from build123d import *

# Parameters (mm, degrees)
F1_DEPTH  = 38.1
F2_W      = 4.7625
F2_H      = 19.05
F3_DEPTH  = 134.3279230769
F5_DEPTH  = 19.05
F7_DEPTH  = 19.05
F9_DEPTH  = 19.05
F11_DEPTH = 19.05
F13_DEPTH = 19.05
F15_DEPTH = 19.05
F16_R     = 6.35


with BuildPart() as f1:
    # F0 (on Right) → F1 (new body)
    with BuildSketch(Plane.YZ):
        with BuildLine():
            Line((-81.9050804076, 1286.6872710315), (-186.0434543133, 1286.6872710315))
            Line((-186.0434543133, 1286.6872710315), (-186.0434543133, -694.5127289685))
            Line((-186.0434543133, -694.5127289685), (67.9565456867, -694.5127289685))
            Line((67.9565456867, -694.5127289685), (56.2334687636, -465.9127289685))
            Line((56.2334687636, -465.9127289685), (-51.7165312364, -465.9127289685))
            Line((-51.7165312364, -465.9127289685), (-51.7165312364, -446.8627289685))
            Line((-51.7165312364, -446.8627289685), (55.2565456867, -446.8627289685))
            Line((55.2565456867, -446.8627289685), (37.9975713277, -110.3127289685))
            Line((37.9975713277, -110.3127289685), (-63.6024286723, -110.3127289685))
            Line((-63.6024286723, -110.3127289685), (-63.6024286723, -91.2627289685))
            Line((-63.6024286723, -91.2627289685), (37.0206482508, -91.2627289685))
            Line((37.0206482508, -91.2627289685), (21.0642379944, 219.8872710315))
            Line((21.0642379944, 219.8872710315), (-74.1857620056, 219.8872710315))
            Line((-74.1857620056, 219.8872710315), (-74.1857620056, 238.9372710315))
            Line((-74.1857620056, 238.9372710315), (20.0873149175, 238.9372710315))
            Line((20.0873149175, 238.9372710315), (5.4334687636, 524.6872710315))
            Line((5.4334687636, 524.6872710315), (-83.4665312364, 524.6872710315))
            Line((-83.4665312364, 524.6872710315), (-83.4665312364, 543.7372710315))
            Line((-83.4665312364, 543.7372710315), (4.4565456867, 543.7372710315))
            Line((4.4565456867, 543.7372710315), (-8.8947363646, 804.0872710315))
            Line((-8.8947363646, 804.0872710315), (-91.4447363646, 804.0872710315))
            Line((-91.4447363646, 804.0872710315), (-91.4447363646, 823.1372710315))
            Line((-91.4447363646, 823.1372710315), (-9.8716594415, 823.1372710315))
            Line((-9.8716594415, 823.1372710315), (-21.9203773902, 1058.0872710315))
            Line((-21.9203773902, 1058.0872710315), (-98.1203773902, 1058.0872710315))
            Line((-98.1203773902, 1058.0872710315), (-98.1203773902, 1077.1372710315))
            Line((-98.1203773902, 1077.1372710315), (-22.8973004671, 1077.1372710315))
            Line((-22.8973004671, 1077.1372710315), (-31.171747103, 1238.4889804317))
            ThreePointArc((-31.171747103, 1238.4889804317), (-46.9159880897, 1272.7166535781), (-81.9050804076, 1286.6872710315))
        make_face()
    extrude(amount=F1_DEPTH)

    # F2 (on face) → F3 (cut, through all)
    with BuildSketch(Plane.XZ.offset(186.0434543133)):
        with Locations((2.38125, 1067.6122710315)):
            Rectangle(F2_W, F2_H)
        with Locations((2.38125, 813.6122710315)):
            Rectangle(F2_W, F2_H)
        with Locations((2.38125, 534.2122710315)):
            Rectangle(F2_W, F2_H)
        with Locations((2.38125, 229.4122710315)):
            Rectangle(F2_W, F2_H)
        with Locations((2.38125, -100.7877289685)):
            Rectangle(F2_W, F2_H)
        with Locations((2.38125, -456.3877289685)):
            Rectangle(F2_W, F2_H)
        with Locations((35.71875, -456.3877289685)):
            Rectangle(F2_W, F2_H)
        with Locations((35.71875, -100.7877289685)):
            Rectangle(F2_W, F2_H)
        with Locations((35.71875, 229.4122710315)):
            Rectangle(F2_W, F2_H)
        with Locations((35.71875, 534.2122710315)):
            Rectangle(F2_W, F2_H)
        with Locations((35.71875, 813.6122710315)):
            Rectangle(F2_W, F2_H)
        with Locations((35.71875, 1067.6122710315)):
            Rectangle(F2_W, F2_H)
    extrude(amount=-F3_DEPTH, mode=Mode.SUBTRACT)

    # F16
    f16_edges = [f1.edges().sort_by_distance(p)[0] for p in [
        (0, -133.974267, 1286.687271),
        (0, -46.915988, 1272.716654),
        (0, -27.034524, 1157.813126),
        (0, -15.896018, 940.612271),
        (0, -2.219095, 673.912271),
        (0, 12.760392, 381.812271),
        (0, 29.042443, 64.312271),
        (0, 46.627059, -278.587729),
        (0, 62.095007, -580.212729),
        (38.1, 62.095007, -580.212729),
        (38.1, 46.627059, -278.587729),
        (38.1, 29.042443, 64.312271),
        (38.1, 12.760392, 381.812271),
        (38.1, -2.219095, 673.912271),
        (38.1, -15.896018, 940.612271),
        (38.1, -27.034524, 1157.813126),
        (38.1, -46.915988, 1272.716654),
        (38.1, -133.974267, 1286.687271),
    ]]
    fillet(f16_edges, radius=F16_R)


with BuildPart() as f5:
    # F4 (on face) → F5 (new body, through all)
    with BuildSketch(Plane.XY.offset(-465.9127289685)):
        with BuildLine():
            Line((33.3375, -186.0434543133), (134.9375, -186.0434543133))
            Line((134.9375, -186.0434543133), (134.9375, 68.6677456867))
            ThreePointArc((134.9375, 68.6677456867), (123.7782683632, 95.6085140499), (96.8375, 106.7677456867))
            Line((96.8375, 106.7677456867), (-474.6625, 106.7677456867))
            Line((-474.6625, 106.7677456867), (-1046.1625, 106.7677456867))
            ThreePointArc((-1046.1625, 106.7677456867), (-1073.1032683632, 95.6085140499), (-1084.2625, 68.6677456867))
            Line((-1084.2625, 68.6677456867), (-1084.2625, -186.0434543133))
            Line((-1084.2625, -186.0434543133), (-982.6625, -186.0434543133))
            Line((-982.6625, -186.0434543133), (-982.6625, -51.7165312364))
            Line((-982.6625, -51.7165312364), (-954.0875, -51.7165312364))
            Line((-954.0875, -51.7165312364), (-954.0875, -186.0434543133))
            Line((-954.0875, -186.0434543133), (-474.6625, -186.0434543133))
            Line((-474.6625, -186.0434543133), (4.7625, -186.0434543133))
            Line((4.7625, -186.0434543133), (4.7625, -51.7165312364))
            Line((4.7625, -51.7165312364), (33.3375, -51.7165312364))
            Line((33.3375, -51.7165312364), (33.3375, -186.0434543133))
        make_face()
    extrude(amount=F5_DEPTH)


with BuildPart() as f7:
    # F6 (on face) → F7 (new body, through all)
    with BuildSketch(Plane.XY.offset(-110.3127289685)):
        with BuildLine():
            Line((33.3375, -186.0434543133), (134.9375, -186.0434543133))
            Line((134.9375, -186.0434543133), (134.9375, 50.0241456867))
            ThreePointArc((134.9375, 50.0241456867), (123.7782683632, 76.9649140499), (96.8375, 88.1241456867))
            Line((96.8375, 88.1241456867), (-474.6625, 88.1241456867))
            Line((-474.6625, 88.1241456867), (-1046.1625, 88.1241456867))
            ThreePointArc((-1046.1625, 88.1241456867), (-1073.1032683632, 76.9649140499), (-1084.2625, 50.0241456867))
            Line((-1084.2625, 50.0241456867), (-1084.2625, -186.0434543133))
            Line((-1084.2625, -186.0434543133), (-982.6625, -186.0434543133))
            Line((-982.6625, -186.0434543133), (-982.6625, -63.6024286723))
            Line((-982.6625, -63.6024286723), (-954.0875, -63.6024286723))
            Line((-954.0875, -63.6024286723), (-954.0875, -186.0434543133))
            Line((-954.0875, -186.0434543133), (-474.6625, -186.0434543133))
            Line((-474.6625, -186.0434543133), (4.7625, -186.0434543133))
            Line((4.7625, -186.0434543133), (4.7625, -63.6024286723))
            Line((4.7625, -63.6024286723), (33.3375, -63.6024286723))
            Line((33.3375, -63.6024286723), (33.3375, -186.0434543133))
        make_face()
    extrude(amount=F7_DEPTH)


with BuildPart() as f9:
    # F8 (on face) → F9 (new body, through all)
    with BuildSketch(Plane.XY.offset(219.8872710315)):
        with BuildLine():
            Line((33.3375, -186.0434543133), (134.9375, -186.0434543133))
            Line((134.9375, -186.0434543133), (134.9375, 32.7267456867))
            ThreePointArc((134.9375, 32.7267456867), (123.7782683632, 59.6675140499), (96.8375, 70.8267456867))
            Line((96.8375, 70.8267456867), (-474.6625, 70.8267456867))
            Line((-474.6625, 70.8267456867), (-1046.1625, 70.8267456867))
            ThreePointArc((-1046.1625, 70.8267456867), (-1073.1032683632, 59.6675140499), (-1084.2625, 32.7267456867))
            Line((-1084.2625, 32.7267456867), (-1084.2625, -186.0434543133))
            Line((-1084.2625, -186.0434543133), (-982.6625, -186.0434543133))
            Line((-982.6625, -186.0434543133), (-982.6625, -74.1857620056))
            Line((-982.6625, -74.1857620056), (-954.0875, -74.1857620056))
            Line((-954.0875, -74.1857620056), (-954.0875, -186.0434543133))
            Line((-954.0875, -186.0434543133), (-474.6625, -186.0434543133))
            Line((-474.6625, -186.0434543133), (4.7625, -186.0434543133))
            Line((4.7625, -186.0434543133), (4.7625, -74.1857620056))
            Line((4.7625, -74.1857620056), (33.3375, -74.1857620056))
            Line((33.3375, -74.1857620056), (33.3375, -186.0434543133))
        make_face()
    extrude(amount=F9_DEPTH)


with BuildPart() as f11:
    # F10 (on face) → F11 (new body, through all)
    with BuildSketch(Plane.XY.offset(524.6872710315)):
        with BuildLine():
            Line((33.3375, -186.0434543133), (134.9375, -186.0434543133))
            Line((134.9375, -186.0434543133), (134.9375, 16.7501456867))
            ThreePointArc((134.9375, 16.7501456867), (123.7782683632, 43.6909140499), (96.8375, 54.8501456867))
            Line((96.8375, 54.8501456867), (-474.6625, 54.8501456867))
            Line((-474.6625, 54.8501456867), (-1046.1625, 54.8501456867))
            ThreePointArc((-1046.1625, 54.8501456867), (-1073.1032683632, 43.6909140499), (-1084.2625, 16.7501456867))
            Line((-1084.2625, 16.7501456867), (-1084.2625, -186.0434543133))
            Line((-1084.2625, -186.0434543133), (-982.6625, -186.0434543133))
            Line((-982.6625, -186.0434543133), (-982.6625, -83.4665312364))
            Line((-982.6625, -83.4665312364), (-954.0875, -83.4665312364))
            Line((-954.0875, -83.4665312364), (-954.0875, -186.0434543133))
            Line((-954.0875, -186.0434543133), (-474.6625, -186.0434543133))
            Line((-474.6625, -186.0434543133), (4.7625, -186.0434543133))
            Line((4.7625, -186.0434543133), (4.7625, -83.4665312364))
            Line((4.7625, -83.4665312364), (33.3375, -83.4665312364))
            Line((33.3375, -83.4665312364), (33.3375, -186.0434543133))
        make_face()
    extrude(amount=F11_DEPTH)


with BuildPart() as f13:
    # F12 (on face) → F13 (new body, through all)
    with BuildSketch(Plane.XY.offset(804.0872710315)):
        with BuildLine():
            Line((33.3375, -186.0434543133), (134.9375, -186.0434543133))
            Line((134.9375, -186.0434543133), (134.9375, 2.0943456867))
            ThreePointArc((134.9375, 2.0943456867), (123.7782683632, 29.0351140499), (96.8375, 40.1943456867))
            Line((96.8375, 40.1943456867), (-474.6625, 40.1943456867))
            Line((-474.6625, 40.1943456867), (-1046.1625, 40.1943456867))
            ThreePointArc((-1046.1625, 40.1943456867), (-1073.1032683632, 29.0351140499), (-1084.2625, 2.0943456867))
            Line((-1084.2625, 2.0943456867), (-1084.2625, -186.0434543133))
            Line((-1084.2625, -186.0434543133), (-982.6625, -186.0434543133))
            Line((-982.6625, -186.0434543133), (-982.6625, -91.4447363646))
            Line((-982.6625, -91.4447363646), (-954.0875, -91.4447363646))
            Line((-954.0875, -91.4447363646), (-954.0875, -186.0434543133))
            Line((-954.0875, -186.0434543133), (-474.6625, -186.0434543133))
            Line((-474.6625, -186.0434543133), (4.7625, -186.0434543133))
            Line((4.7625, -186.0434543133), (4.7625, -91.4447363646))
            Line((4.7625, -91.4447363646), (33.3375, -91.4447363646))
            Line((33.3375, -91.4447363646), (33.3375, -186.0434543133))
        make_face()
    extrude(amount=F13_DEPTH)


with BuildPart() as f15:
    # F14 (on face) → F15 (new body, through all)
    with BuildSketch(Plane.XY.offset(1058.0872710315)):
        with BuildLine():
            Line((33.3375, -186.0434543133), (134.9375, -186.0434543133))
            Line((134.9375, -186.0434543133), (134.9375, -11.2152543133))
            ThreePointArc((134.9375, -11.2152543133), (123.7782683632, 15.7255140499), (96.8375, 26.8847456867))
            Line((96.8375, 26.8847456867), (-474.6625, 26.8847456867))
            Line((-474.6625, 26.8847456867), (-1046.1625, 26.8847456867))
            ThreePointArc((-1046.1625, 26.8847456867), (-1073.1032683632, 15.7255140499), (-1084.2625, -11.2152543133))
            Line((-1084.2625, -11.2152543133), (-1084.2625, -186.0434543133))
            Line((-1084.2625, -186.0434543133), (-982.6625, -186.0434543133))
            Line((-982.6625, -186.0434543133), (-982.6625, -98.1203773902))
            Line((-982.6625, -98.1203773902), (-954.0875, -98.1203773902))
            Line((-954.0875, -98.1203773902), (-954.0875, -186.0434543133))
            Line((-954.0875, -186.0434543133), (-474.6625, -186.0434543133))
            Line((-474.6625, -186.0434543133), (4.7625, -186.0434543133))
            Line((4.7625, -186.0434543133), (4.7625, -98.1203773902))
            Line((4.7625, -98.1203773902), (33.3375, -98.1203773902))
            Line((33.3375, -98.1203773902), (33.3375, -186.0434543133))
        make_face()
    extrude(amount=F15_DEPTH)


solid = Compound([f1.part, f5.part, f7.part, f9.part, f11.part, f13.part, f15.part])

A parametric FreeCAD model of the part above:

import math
import FreeCAD as App
import Part
import Sketcher

V = App.Vector
Q = App.Units.Quantity


def edges_at(feature, points):
    """Names of the edges that pass closest to the given points."""
    edges = feature.Shape.Edges
    near = lambda p: min(range(len(edges)), key=lambda i: edges[i].distToShape(Part.Vertex(*p))[0])
    return sorted({f"Edge{near(p) + 1}" for p in points})


def add_polygon(sketch, points):
    """Adds a closed chain of lines whose ends are joined by coincident constraints."""
    first, n = sketch.GeometryCount, len(points)
    for a, b in zip(points, points[1:] + points[:1]):
        sketch.addGeometry(Part.LineSegment(App.Vector(*a, 0), App.Vector(*b, 0)), False)
    for i in range(n):
        sketch.addConstraint(Sketcher.Constraint("Coincident", first + i, 2, first + (i + 1) % n, 1))

doc = App.newDocument("Part")
body = doc.addObject("PartDesign::Body", "Body")

# Sketch on YZ plane
sketch1 = body.newObject("Sketcher::SketchObject", "Sketch")
sketch1.AttachmentSupport = (doc.getObject("YZ_Plane"), [""])
sketch1.MapMode = "FlatFace"
sketch1.addGeometry([
    Part.LineSegment(V(-82, 1287, 0), V(-186, 1287, 0)),  # 0
    Part.LineSegment(V(-186, 1287, 0), V(-186, -695, 0)),  # 1
    Part.LineSegment(V(-186, -695, 0), V(68, -695, 0)),  # 2
    Part.LineSegment(V(68, -695, 0), V(56, -466, 0)),  # 3
    Part.LineSegment(V(56, -466, 0), V(-52, -466, 0)),  # 4
    Part.LineSegment(V(-52, -466, 0), V(-52, -447, 0)),  # 5
    Part.LineSegment(V(-52, -447, 0), V(55, -447, 0)),  # 6
    Part.LineSegment(V(55, -447, 0), V(38, -110, 0)),  # 7
    Part.LineSegment(V(38, -110, 0), V(-64, -110, 0)),  # 8
    Part.LineSegment(V(-64, -110, 0), V(-64, -91, 0)),  # 9
    Part.LineSegment(V(-64, -91, 0), V(37, -91, 0)),  # 10
    Part.LineSegment(V(37, -91, 0), V(21, 220, 0)),  # 11
    Part.LineSegment(V(21, 220, 0), V(-74, 220, 0)),  # 12
    Part.LineSegment(V(-74, 220, 0), V(-74, 239, 0)),  # 13
    Part.LineSegment(V(-74, 239, 0), V(20, 239, 0)),  # 14
    Part.LineSegment(V(20, 239, 0), V(5, 525, 0)),  # 15
    Part.LineSegment(V(5, 525, 0), V(-83, 525, 0)),  # 16
    Part.LineSegment(V(-83, 525, 0), V(-83, 544, 0)),  # 17
    Part.LineSegment(V(-83, 544, 0), V(4, 544, 0)),  # 18
    Part.LineSegment(V(4, 544, 0), V(-9, 804, 0)),  # 19
    Part.LineSegment(V(-9, 804, 0), V(-91, 804, 0)),  # 20
    Part.LineSegment(V(-91, 804, 0), V(-91, 823, 0)),  # 21
    Part.LineSegment(V(-91, 823, 0), V(-10, 823, 0)),  # 22
    Part.LineSegment(V(-10, 823, 0), V(-22, 1058, 0)),  # 23
    Part.LineSegment(V(-22, 1058, 0), V(-98, 1058, 0)),  # 24
    Part.LineSegment(V(-98, 1058, 0), V(-98, 1077, 0)),  # 25
    Part.LineSegment(V(-98, 1077, 0), V(-23, 1077, 0)),  # 26
    Part.LineSegment(V(-23, 1077, 0), V(-31, 1238, 0)),  # 27
    Part.ArcOfCircle(Part.Circle(V(-82, 1236, 0), V(0, 0, 1), 51), math.radians(3), math.radians(90)),  # 28
], False)
sketch1.addConstraint([
    Sketcher.Constraint("Coincident", 0, 2, 1, 1),
    Sketcher.Constraint("Coincident", 1, 2, 2, 1),
    Sketcher.Constraint("Coincident", 2, 2, 3, 1),
    Sketcher.Constraint("Coincident", 3, 2, 4, 1),
    Sketcher.Constraint("Coincident", 4, 2, 5, 1),
    Sketcher.Constraint("Coincident", 5, 2, 6, 1),
    Sketcher.Constraint("Coincident", 6, 2, 7, 1),
    Sketcher.Constraint("Coincident", 7, 2, 8, 1),
    Sketcher.Constraint("Coincident", 8, 2, 9, 1),
    Sketcher.Constraint("Coincident", 9, 2, 10, 1),
    Sketcher.Constraint("Coincident", 10, 2, 11, 1),
    Sketcher.Constraint("Coincident", 11, 2, 12, 1),
    Sketcher.Constraint("Coincident", 12, 2, 13, 1),
    Sketcher.Constraint("Coincident", 13, 2, 14, 1),
    Sketcher.Constraint("Coincident", 14, 2, 15, 1),
    Sketcher.Constraint("Coincident", 15, 2, 16, 1),
    Sketcher.Constraint("Coincident", 16, 2, 17, 1),
    Sketcher.Constraint("Coincident", 17, 2, 18, 1),
    Sketcher.Constraint("Coincident", 18, 2, 19, 1),
    Sketcher.Constraint("Coincident", 19, 2, 20, 1),
    Sketcher.Constraint("Coincident", 20, 2, 21, 1),
    Sketcher.Constraint("Coincident", 21, 2, 22, 1),
    Sketcher.Constraint("Coincident", 22, 2, 23, 1),
    Sketcher.Constraint("Coincident", 23, 2, 24, 1),
    Sketcher.Constraint("Coincident", 24, 2, 25, 1),
    Sketcher.Constraint("Coincident", 25, 2, 26, 1),
    Sketcher.Constraint("Coincident", 26, 2, 27, 1),
    Sketcher.Constraint("Tangent", 27, 2, 28, 1),
    Sketcher.Constraint("Tangent", 28, 2, 0, 1),
    Sketcher.Constraint("Horizontal", 0),
    Sketcher.Constraint("Vertical", 1),
    Sketcher.Constraint("Horizontal", 2),
    Sketcher.Constraint("Horizontal", 4),
    Sketcher.Constraint("Vertical", 5),
    Sketcher.Constraint("Horizontal", 6),
    Sketcher.Constraint("Horizontal", 8),
    Sketcher.Constraint("Vertical", 9),
    Sketcher.Constraint("Horizontal", 10),
    Sketcher.Constraint("Horizontal", 12),
    Sketcher.Constraint("Vertical", 13),
    Sketcher.Constraint("Horizontal", 14),
    Sketcher.Constraint("Horizontal", 16),
    Sketcher.Constraint("Vertical", 17),
    Sketcher.Constraint("Horizontal", 18),
    Sketcher.Constraint("Horizontal", 20),
    Sketcher.Constraint("Vertical", 21),
    Sketcher.Constraint("Horizontal", 22),
    Sketcher.Constraint("Horizontal", 24),
    Sketcher.Constraint("Vertical", 25),
    Sketcher.Constraint("Horizontal", 26),
    Sketcher.Constraint("Parallel", 3, 7),
    Sketcher.Constraint("Parallel", 7, 11),
    Sketcher.Constraint("Parallel", 11, 15),
    Sketcher.Constraint("Parallel", 15, 19),
    Sketcher.Constraint("Parallel", 19, 23),
    Sketcher.Constraint("Parallel", 23, 27),
    Sketcher.Constraint("Equal", 5, 9),
    Sketcher.Constraint("Equal", 9, 13),
    Sketcher.Constraint("Equal", 13, 17),
    Sketcher.Constraint("Equal", 17, 21),
    Sketcher.Constraint("Equal", 21, 25),
    Sketcher.Constraint("Radius", 28, Q("2 in")),
    Sketcher.Constraint("DistanceX", 2, 1, 2, 2, Q("10 in")),
    Sketcher.Constraint("DistanceX", 8, 2, 8, 1, Q("4 in")),
    Sketcher.Constraint("DistanceX", 24, 2, 24, 1, Q("3 in")),
    Sketcher.Constraint("DistanceY", 1, 2, 1, 1, Q("78 in")),
    Sketcher.Constraint("DistanceX", 16, 2, 16, 1, Q("3.5 in")),
    Sketcher.Constraint("DistanceY", 2, 2, 3, 2, Q("9 in")),
    Sketcher.Constraint("DistanceY", 3, 2, 7, 2, Q("14 in")),
    Sketcher.Constraint("DistanceY", 7, 2, 11, 2, Q("13 in")),
    Sketcher.Constraint("DistanceY", 11, 2, 15, 2, Q("12 in")),
    Sketcher.Constraint("DistanceY", 15, 2, 19, 2, Q("11 in")),
    Sketcher.Constraint("DistanceY", 23, 2, 28, 3, Q("7 in")),
    Sketcher.Constraint("DistanceX", 4, 2, 4, 1, Q("4.25 in")),
    Sketcher.Constraint("DistanceX", 12, 2, 12, 1, Q("3.75 in")),
    Sketcher.Constraint("DistanceX", 20, 2, 20, 1, Q("3.25 in")),
    Sketcher.Constraint("DistanceY", 5, 1, 5, 2, Q("0.75 in")),
    Sketcher.Constraint("DistanceX", 6, 2, 2, 2, Q("0.5 in")),
    Sketcher.Constraint("DistanceX", 26, 2, -1, 1, Q("22.8973 mm")),
    Sketcher.Constraint("Distance", 11, Q("311.55887 mm")),
    Sketcher.Constraint("DistanceX", 0, 2, 0, 1, Q("104.138374 mm")),
    Sketcher.Constraint("DistanceX", 10, 1, 10, 2, Q("100.623077 mm")),
    Sketcher.Constraint("DistanceX", 14, 1, 14, 2, Q("94.273077 mm")),
    Sketcher.Constraint("DistanceX", 18, 1, 18, 2, Q("87.923077 mm")),
    Sketcher.Constraint("DistanceX", 22, 1, 22, 2, Q("81.573077 mm")),
    Sketcher.Constraint("DistanceY", -1, 1, 28, 3, Q("1235.887271 mm")),
])
pad1 = body.newObject("PartDesign::Pad", "Pad")
pad1.Profile = sketch1
pad1.Length = Q("1.5 in")

# Sketch on XZ plane
sketch2 = body.newObject("Sketcher::SketchObject", "Sketch001")
sketch2.AttachmentSupport = (doc.getObject("XZ_Plane"), [""])
sketch2.MapMode = "FlatFace"
sketch2.AttachmentOffset = App.Placement(V(0, 0, 186.043454), App.Rotation())
add_polygon(sketch2, [(0, 1077.1), (0, 1058.1), (4.8, 1058.1), (4.8, 1077.1)])  # lines 0-3
add_polygon(sketch2, [(0, 823.1), (0, 804.1), (4.8, 804.1), (4.8, 823.1)])  # lines 4-7
add_polygon(sketch2, [(0, 543.7), (0, 524.7), (4.8, 524.7), (4.8, 543.7)])  # lines 8-11
add_polygon(sketch2, [(0, 238.9), (0, 219.9), (4.8, 219.9), (4.8, 238.9)])  # lines 12-15
add_polygon(sketch2, [(0, -91.3), (0, -110.3), (4.8, -110.3), (4.8, -91.3)])  # lines 16-19
add_polygon(sketch2, [(0, -446.9), (0, -465.9), (4.8, -465.9), (4.8, -446.9)])  # lines 20-23
add_polygon(sketch2, [(33.3, -446.9), (33.3, -465.9), (38.1, -465.9), (38.1, -446.9)])  # lines 24-27
add_polygon(sketch2, [(33.3, -91.3), (33.3, -110.3), (38.1, -110.3), (38.1, -91.3)])  # lines 28-31
add_polygon(sketch2, [(33.3, 238.9), (33.3, 219.9), (38.1, 219.9), (38.1, 238.9)])  # lines 32-35
add_polygon(sketch2, [(33.3, 543.7), (33.3, 524.7), (38.1, 524.7), (38.1, 543.7)])  # lines 36-39
add_polygon(sketch2, [(33.3, 823.1), (33.3, 804.1), (38.1, 804.1), (38.1, 823.1)])  # lines 40-43
add_polygon(sketch2, [(33.3, 1077.1), (33.3, 1058.1), (38.1, 1058.1), (38.1, 1077.1)])  # lines 44-47
sketch2.addConstraint([
    Sketcher.Constraint("Vertical", 0),
    Sketcher.Constraint("Horizontal", 1),
    Sketcher.Constraint("Vertical", 2),
    Sketcher.Constraint("Horizontal", 3),
    Sketcher.Constraint("Vertical", 4),
    Sketcher.Constraint("Horizontal", 5),
    Sketcher.Constraint("Vertical", 6),
    Sketcher.Constraint("Horizontal", 7),
    Sketcher.Constraint("Vertical", 8),
    Sketcher.Constraint("Horizontal", 9),
    Sketcher.Constraint("Vertical", 10),
    Sketcher.Constraint("Horizontal", 11),
    Sketcher.Constraint("Vertical", 12),
    Sketcher.Constraint("Horizontal", 13),
    Sketcher.Constraint("Vertical", 14),
    Sketcher.Constraint("Horizontal", 15),
    Sketcher.Constraint("Vertical", 16),
    Sketcher.Constraint("Horizontal", 17),
    Sketcher.Constraint("Vertical", 18),
    Sketcher.Constraint("Horizontal", 19),
    Sketcher.Constraint("Vertical", 20),
    Sketcher.Constraint("Horizontal", 21),
    Sketcher.Constraint("Vertical", 22),
    Sketcher.Constraint("Horizontal", 23),
    Sketcher.Constraint("Vertical", 24),
    Sketcher.Constraint("Horizontal", 25),
    Sketcher.Constraint("Vertical", 26),
    Sketcher.Constraint("Horizontal", 27),
    Sketcher.Constraint("Vertical", 28),
    Sketcher.Constraint("Horizontal", 29),
    Sketcher.Constraint("Vertical", 30),
    Sketcher.Constraint("Horizontal", 31),
    Sketcher.Constraint("Vertical", 32),
    Sketcher.Constraint("Horizontal", 33),
    Sketcher.Constraint("Vertical", 34),
    Sketcher.Constraint("Horizontal", 35),
    Sketcher.Constraint("Vertical", 36),
    Sketcher.Constraint("Horizontal", 37),
    Sketcher.Constraint("Vertical", 38),
    Sketcher.Constraint("Horizontal", 39),
    Sketcher.Constraint("Vertical", 40),
    Sketcher.Constraint("Horizontal", 41),
    Sketcher.Constraint("Vertical", 42),
    Sketcher.Constraint("Horizontal", 43),
    Sketcher.Constraint("Vertical", 44),
    Sketcher.Constraint("Horizontal", 45),
    Sketcher.Constraint("Vertical", 46),
    Sketcher.Constraint("Horizontal", 47),
    Sketcher.Constraint("PointOnObject", 0, 2, -2),
    Sketcher.Constraint("PointOnObject", 4, 2, -2),
    Sketcher.Constraint("PointOnObject", 8, 2, -2),
    Sketcher.Constraint("PointOnObject", 12, 2, -2),
    Sketcher.Constraint("PointOnObject", 16, 2, -2),
    Sketcher.Constraint("PointOnObject", 20, 2, -2),
    Sketcher.Constraint("Horizontal", 21, 2, 24, 2),
    Sketcher.Constraint("Horizontal", 23, 2, 26, 2),
    Sketcher.Constraint("Horizontal", 17, 2, 28, 2),
    Sketcher.Constraint("Horizontal", 19, 2, 30, 2),
    Sketcher.Constraint("Horizontal", 13, 2, 32, 2),
    Sketcher.Constraint("Horizontal", 15, 2, 34, 2),
    Sketcher.Constraint("Horizontal", 9, 2, 36, 2),
    Sketcher.Constraint("Horizontal", 11, 2, 38, 2),
    Sketcher.Constraint("Horizontal", 5, 2, 40, 2),
    Sketcher.Constraint("Horizontal", 7, 2, 42, 2),
    Sketcher.Constraint("Horizontal", 1, 2, 44, 2),
    Sketcher.Constraint("Horizontal", 3, 2, 46, 2),
    Sketcher.Constraint("Vertical", 2, 2, 5, 2),
    Sketcher.Constraint("Vertical", 6, 2, 9, 2),
    Sketcher.Constraint("Vertical", 10, 2, 13, 2),
    Sketcher.Constraint("Vertical", 14, 2, 17, 2),
    Sketcher.Constraint("Vertical", 18, 2, 21, 2),
    Sketcher.Constraint("Vertical", 27, 2, 28, 2),
    Sketcher.Constraint("Vertical", 26, 2, 29, 2),
    Sketcher.Constraint("Vertical", 31, 2, 32, 2),
    Sketcher.Constraint("Vertical", 30, 2, 33, 2),
    Sketcher.Constraint("Vertical", 35, 2, 36, 2),
    Sketcher.Constraint("Vertical", 34, 2, 37, 2),
    Sketcher.Constraint("Vertical", 39, 2, 40, 2),
    Sketcher.Constraint("Vertical", 38, 2, 41, 2),
    Sketcher.Constraint("Vertical", 43, 2, 44, 2),
    Sketcher.Constraint("Vertical", 42, 2, 45, 2),
    Sketcher.Constraint("Equal", 23, 25),
    Sketcher.Constraint("Equal", 2, 4),
    Sketcher.Constraint("Equal", 6, 8),
    Sketcher.Constraint("Equal", 10, 12),
    Sketcher.Constraint("Equal", 14, 16),
    Sketcher.Constraint("Equal", 18, 20),
    Sketcher.Constraint("DistanceY", 4, 2, 0, 2, Q("10 in")),
    Sketcher.Constraint("DistanceY", 8, 2, 4, 2, Q("11 in")),
    Sketcher.Constraint("DistanceY", 12, 2, 8, 2, Q("12 in")),
    Sketcher.Constraint("DistanceY", 16, 2, 12, 2, Q("13 in")),
    Sketcher.Constraint("DistanceY", 20, 2, 16, 2, Q("14 in")),
    Sketcher.Constraint("DistanceY", 0, 2, 0, 1, Q("0.75 in")),
    Sketcher.Constraint("DistanceX", -1, 1, 25, 2, Q("1.5 in")),
    Sketcher.Constraint("DistanceX", 1, 1, 1, 2, Q("0.1875 in")),
    Sketcher.Constraint("DistanceY", -1, 1, 0, 2, Q("1058.087271 mm")),
])
pocket1 = body.newObject("PartDesign::Pocket", "Pocket")
pocket1.Profile = sketch2
pocket1.Type = "ThroughAll"
doc.recompute()

fillet = body.newObject("PartDesign::Fillet", "Fillet")
fillet.Base = (pocket1, edges_at(pocket1, [
    (0, -133.974, 1286.687),
    (0, -46.916, 1272.717),
    (0, -27.035, 1157.813),
    (0, -15.896, 940.612),
    (0, -2.219, 673.912),
    (0, 12.76, 381.812),
    (0, 29.042, 64.312),
    (0, 46.627, -278.588),
    (0, 62.095, -580.213),
    (38.1, 62.095, -580.213),
    (38.1, 46.627, -278.588),
    (38.1, 29.042, 64.312),
    (38.1, 12.76, 381.812),
    (38.1, -2.219, 673.912),
    (38.1, -15.896, 940.612),
    (38.1, -27.035, 1157.813),
    (38.1, -46.916, 1272.717),
    (38.1, -133.974, 1286.687),
]))
fillet.Radius = Q("0.25 in")
body2 = doc.addObject("PartDesign::Body", "Body001")

# Sketch on XY plane
sketch3 = body2.newObject("Sketcher::SketchObject", "Sketch002")
sketch3.AttachmentSupport = (doc.getObject("XY_Plane001"), [""])
sketch3.MapMode = "FlatFace"
sketch3.AttachmentOffset = App.Placement(V(0, 0, -465.912729), App.Rotation())
sketch3.addGeometry([
    Part.LineSegment(V(33, -186, 0), V(135, -186, 0)),  # 0
    Part.LineSegment(V(135, -186, 0), V(135, 69, 0)),  # 1
    Part.ArcOfCircle(Part.Circle(V(97, 69, 0), V(0, 0, 1), 38), math.radians(0), math.radians(90)),  # 2
    Part.LineSegment(V(97, 107, 0), V(-1046, 107, 0)),  # 3
    Part.ArcOfCircle(Part.Circle(V(-1046, 69, 0), V(0, 0, 1), 38), math.radians(90), math.radians(180)),  # 4
    Part.LineSegment(V(-1084, 69, 0), V(-1084, -186, 0)),  # 5
    Part.LineSegment(V(-1084, -186, 0), V(-983, -186, 0)),  # 6
    Part.LineSegment(V(-983, -186, 0), V(-983, -52, 0)),  # 7
    Part.LineSegment(V(-983, -52, 0), V(-954, -52, 0)),  # 8
    Part.LineSegment(V(-954, -52, 0), V(-954, -186, 0)),  # 9
    Part.LineSegment(V(-954, -186, 0), V(5, -186, 0)),  # 10
    Part.LineSegment(V(5, -186, 0), V(5, -52, 0)),  # 11
    Part.LineSegment(V(5, -52, 0), V(33, -52, 0)),  # 12
    Part.LineSegment(V(33, -52, 0), V(33, -186, 0)),  # 13
], False)
sketch3.addConstraint([
    Sketcher.Constraint("Coincident", 0, 2, 1, 1),
    Sketcher.Constraint("Tangent", 1, 2, 2, 1),
    Sketcher.Constraint("Tangent", 2, 2, 3, 1),
    Sketcher.Constraint("Tangent", 3, 2, 4, 1),
    Sketcher.Constraint("Tangent", 4, 2, 5, 1),
    Sketcher.Constraint("Coincident", 5, 2, 6, 1),
    Sketcher.Constraint("Coincident", 6, 2, 7, 1),
    Sketcher.Constraint("Coincident", 7, 2, 8, 1),
    Sketcher.Constraint("Coincident", 8, 2, 9, 1),
    Sketcher.Constraint("Coincident", 9, 2, 10, 1),
    Sketcher.Constraint("Coincident", 10, 2, 11, 1),
    Sketcher.Constraint("Coincident", 11, 2, 12, 1),
    Sketcher.Constraint("Coincident", 12, 2, 13, 1),
    Sketcher.Constraint("Coincident", 13, 2, 0, 1),
    Sketcher.Constraint("Horizontal", 0),
    Sketcher.Constraint("Vertical", 1),
    Sketcher.Constraint("Horizontal", 3),
    Sketcher.Constraint("Vertical", 5),
    Sketcher.Constraint("Horizontal", 6),
    Sketcher.Constraint("Vertical", 7),
    Sketcher.Constraint("Horizontal", 8),
    Sketcher.Constraint("Vertical", 9),
    Sketcher.Constraint("Horizontal", 10),
    Sketcher.Constraint("Vertical", 11),
    Sketcher.Constraint("Horizontal", 12),
    Sketcher.Constraint("Vertical", 13),
    Sketcher.Constraint("Equal", 2, 4),
    Sketcher.Constraint("Horizontal", 0, 2, 5, 2),
    Sketcher.Constraint("Horizontal", 6, 2, 9, 2),
    Sketcher.Constraint("Horizontal", 8, 2, 11, 2),
    Sketcher.Constraint("Equal", 0, 6),
    Sketcher.Constraint("Equal", 8, 12),
    Sketcher.Constraint("Radius", 2, Q("1.5 in")),
    Sketcher.Constraint("DistanceX", 0, 1, 0, 2, Q("4 in")),
    Sketcher.Constraint("DistanceX", 3, 2, 3, 1, Q("45 in")),
    Sketcher.Constraint("DistanceX", 10, 1, 10, 2, Q("37.75 in")),
    Sketcher.Constraint("DistanceY", 1, 1, 1, 2, Q("10.028 in")),
    Sketcher.Constraint("DistanceX", -1, 1, 2, 3, Q("3.8125 in")),
    Sketcher.Constraint("DistanceY", 7, 1, 7, 2, Q("134.326923 mm")),
    Sketcher.Constraint("DistanceY", 7, 2, -1, 1, Q("51.716531 mm")),
])
pad2 = body2.newObject("PartDesign::Pad", "Pad001")
pad2.Profile = sketch3
pad2.Length = Q("0.75 in")
body3 = doc.addObject("PartDesign::Body", "Body002")

# Sketch on XY plane
sketch4 = body3.newObject("Sketcher::SketchObject", "Sketch003")
sketch4.AttachmentSupport = (doc.getObject("XY_Plane002"), [""])
sketch4.MapMode = "FlatFace"
sketch4.AttachmentOffset = App.Placement(V(0, 0, -110.312729), App.Rotation())
sketch4.addGeometry([
    Part.LineSegment(V(33, -186, 0), V(135, -186, 0)),  # 0
    Part.LineSegment(V(135, -186, 0), V(135, 50, 0)),  # 1
    Part.ArcOfCircle(Part.Circle(V(97, 50, 0), V(0, 0, 1), 38), math.radians(0), math.radians(90)),  # 2
    Part.LineSegment(V(97, 88, 0), V(-1046, 88, 0)),  # 3
    Part.ArcOfCircle(Part.Circle(V(-1046, 50, 0), V(0, 0, 1), 38), math.radians(90), math.radians(180)),  # 4
    Part.LineSegment(V(-1084, 50, 0), V(-1084, -186, 0)),  # 5
    Part.LineSegment(V(-1084, -186, 0), V(-983, -186, 0)),  # 6
    Part.LineSegment(V(-983, -186, 0), V(-983, -64, 0)),  # 7
    Part.LineSegment(V(-983, -64, 0), V(-954, -64, 0)),  # 8
    Part.LineSegment(V(-954, -64, 0), V(-954, -186, 0)),  # 9
    Part.LineSegment(V(-954, -186, 0), V(5, -186, 0)),  # 10
    Part.LineSegment(V(5, -186, 0), V(5, -64, 0)),  # 11
    Part.LineSegment(V(5, -64, 0), V(33, -64, 0)),  # 12
    Part.LineSegment(V(33, -64, 0), V(33, -186, 0)),  # 13
], False)
sketch4.addConstraint([
    Sketcher.Constraint("Coincident", 0, 2, 1, 1),
    Sketcher.Constraint("Tangent", 1, 2, 2, 1),
    Sketcher.Constraint("Tangent", 2, 2, 3, 1),
    Sketcher.Constraint("Tangent", 3, 2, 4, 1),
    Sketcher.Constraint("Tangent", 4, 2, 5, 1),
    Sketcher.Constraint("Coincident", 5, 2, 6, 1),
    Sketcher.Constraint("Coincident", 6, 2, 7, 1),
    Sketcher.Constraint("Coincident", 7, 2, 8, 1),
    Sketcher.Constraint("Coincident", 8, 2, 9, 1),
    Sketcher.Constraint("Coincident", 9, 2, 10, 1),
    Sketcher.Constraint("Coincident", 10, 2, 11, 1),
    Sketcher.Constraint("Coincident", 11, 2, 12, 1),
    Sketcher.Constraint("Coincident", 12, 2, 13, 1),
    Sketcher.Constraint("Coincident", 13, 2, 0, 1),
    Sketcher.Constraint("Horizontal", 0),
    Sketcher.Constraint("Vertical", 1),
    Sketcher.Constraint("Horizontal", 3),
    Sketcher.Constraint("Vertical", 5),
    Sketcher.Constraint("Horizontal", 6),
    Sketcher.Constraint("Vertical", 7),
    Sketcher.Constraint("Horizontal", 8),
    Sketcher.Constraint("Vertical", 9),
    Sketcher.Constraint("Horizontal", 10),
    Sketcher.Constraint("Vertical", 11),
    Sketcher.Constraint("Horizontal", 12),
    Sketcher.Constraint("Vertical", 13),
    Sketcher.Constraint("Equal", 2, 4),
    Sketcher.Constraint("Horizontal", 0, 2, 5, 2),
    Sketcher.Constraint("Horizontal", 6, 2, 9, 2),
    Sketcher.Constraint("Horizontal", 8, 2, 11, 2),
    Sketcher.Constraint("Equal", 0, 6),
    Sketcher.Constraint("Equal", 8, 12),
    Sketcher.Constraint("Radius", 2, Q("1.5 in")),
    Sketcher.Constraint("DistanceX", 0, 1, 0, 2, Q("4 in")),
    Sketcher.Constraint("DistanceX", 3, 2, 3, 1, Q("45 in")),
    Sketcher.Constraint("DistanceX", 10, 1, 10, 2, Q("37.75 in")),
    Sketcher.Constraint("DistanceY", 1, 1, 1, 2, Q("9.294 in")),
    Sketcher.Constraint("DistanceX", -1, 1, 2, 3, Q("3.8125 in")),
    Sketcher.Constraint("DistanceY", 7, 1, 7, 2, Q("122.441026 mm")),
    Sketcher.Constraint("DistanceY", 7, 2, -1, 1, Q("63.602429 mm")),
])
pad3 = body3.newObject("PartDesign::Pad", "Pad002")
pad3.Profile = sketch4
pad3.Length = Q("0.75 in")
body4 = doc.addObject("PartDesign::Body", "Body003")

# Sketch on XY plane
sketch5 = body4.newObject("Sketcher::SketchObject", "Sketch004")
sketch5.AttachmentSupport = (doc.getObject("XY_Plane003"), [""])
sketch5.MapMode = "FlatFace"
sketch5.AttachmentOffset = App.Placement(V(0, 0, 219.887271), App.Rotation())
sketch5.addGeometry([
    Part.LineSegment(V(33, -186, 0), V(135, -186, 0)),  # 0
    Part.LineSegment(V(135, -186, 0), V(135, 33, 0)),  # 1
    Part.ArcOfCircle(Part.Circle(V(97, 33, 0), V(0, 0, 1), 38), math.radians(0), math.radians(90)),  # 2
    Part.LineSegment(V(97, 71, 0), V(-1046, 71, 0)),  # 3
    Part.ArcOfCircle(Part.Circle(V(-1046, 33, 0), V(0, 0, 1), 38), math.radians(90), math.radians(180)),  # 4
    Part.LineSegment(V(-1084, 33, 0), V(-1084, -186, 0)),  # 5
    Part.LineSegment(V(-1084, -186, 0), V(-983, -186, 0)),  # 6
    Part.LineSegment(V(-983, -186, 0), V(-983, -74, 0)),  # 7
    Part.LineSegment(V(-983, -74, 0), V(-954, -74, 0)),  # 8
    Part.LineSegment(V(-954, -74, 0), V(-954, -186, 0)),  # 9
    Part.LineSegment(V(-954, -186, 0), V(5, -186, 0)),  # 10
    Part.LineSegment(V(5, -186, 0), V(5, -74, 0)),  # 11
    Part.LineSegment(V(5, -74, 0), V(33, -74, 0)),  # 12
    Part.LineSegment(V(33, -74, 0), V(33, -186, 0)),  # 13
], False)
sketch5.addConstraint([
    Sketcher.Constraint("Coincident", 0, 2, 1, 1),
    Sketcher.Constraint("Tangent", 1, 2, 2, 1),
    Sketcher.Constraint("Tangent", 2, 2, 3, 1),
    Sketcher.Constraint("Tangent", 3, 2, 4, 1),
    Sketcher.Constraint("Tangent", 4, 2, 5, 1),
    Sketcher.Constraint("Coincident", 5, 2, 6, 1),
    Sketcher.Constraint("Coincident", 6, 2, 7, 1),
    Sketcher.Constraint("Coincident", 7, 2, 8, 1),
    Sketcher.Constraint("Coincident", 8, 2, 9, 1),
    Sketcher.Constraint("Coincident", 9, 2, 10, 1),
    Sketcher.Constraint("Coincident", 10, 2, 11, 1),
    Sketcher.Constraint("Coincident", 11, 2, 12, 1),
    Sketcher.Constraint("Coincident", 12, 2, 13, 1),
    Sketcher.Constraint("Coincident", 13, 2, 0, 1),
    Sketcher.Constraint("Horizontal", 0),
    Sketcher.Constraint("Vertical", 1),
    Sketcher.Constraint("Horizontal", 3),
    Sketcher.Constraint("Vertical", 5),
    Sketcher.Constraint("Horizontal", 6),
    Sketcher.Constraint("Vertical", 7),
    Sketcher.Constraint("Horizontal", 8),
    Sketcher.Constraint("Vertical", 9),
    Sketcher.Constraint("Horizontal", 10),
    Sketcher.Constraint("Vertical", 11),
    Sketcher.Constraint("Horizontal", 12),
    Sketcher.Constraint("Vertical", 13),
    Sketcher.Constraint("Equal", 2, 4),
    Sketcher.Constraint("Horizontal", 0, 2, 5, 2),
    Sketcher.Constraint("Horizontal", 6, 2, 9, 2),
    Sketcher.Constraint("Horizontal", 8, 2, 11, 2),
    Sketcher.Constraint("Equal", 0, 6),
    Sketcher.Constraint("Equal", 8, 12),
    Sketcher.Constraint("Radius", 2, Q("1.5 in")),
    Sketcher.Constraint("DistanceX", 0, 1, 0, 2, Q("4 in")),
    Sketcher.Constraint("DistanceX", 3, 2, 3, 1, Q("45 in")),
    Sketcher.Constraint("DistanceX", 10, 1, 10, 2, Q("37.75 in")),
    Sketcher.Constraint("DistanceY", 1, 1, 1, 2, Q("8.613 in")),
    Sketcher.Constraint("DistanceX", -1, 1, 2, 3, Q("3.8125 in")),
    Sketcher.Constraint("DistanceY", 7, 1, 7, 2, Q("111.857692 mm")),
    Sketcher.Constraint("DistanceY", -1, 1, 2, 3, Q("32.726746 mm")),
])
pad4 = body4.newObject("PartDesign::Pad", "Pad003")
pad4.Profile = sketch5
pad4.Length = Q("0.75 in")
body5 = doc.addObject("PartDesign::Body", "Body004")

# Sketch on XY plane
sketch6 = body5.newObject("Sketcher::SketchObject", "Sketch005")
sketch6.AttachmentSupport = (doc.getObject("XY_Plane004"), [""])
sketch6.MapMode = "FlatFace"
sketch6.AttachmentOffset = App.Placement(V(0, 0, 524.687271), App.Rotation())
sketch6.addGeometry([
    Part.LineSegment(V(33, -186, 0), V(135, -186, 0)),  # 0
    Part.LineSegment(V(135, -186, 0), V(135, 17, 0)),  # 1
    Part.ArcOfCircle(Part.Circle(V(97, 17, 0), V(0, 0, 1), 38), math.radians(0), math.radians(90)),  # 2
    Part.LineSegment(V(97, 55, 0), V(-1046, 55, 0)),  # 3
    Part.ArcOfCircle(Part.Circle(V(-1046, 17, 0), V(0, 0, 1), 38), math.radians(90), math.radians(180)),  # 4
    Part.LineSegment(V(-1084, 17, 0), V(-1084, -186, 0)),  # 5
    Part.LineSegment(V(-1084, -186, 0), V(-983, -186, 0)),  # 6
    Part.LineSegment(V(-983, -186, 0), V(-983, -83, 0)),  # 7
    Part.LineSegment(V(-983, -83, 0), V(-954, -83, 0)),  # 8
    Part.LineSegment(V(-954, -83, 0), V(-954, -186, 0)),  # 9
    Part.LineSegment(V(-954, -186, 0), V(5, -186, 0)),  # 10
    Part.LineSegment(V(5, -186, 0), V(5, -83, 0)),  # 11
    Part.LineSegment(V(5, -83, 0), V(33, -83, 0)),  # 12
    Part.LineSegment(V(33, -83, 0), V(33, -186, 0)),  # 13
], False)
sketch6.addConstraint([
    Sketcher.Constraint("Coincident", 0, 2, 1, 1),
    Sketcher.Constraint("Tangent", 1, 2, 2, 1),
    Sketcher.Constraint("Tangent", 2, 2, 3, 1),
    Sketcher.Constraint("Tangent", 3, 2, 4, 1),
    Sketcher.Constraint("Tangent", 4, 2, 5, 1),
    Sketcher.Constraint("Coincident", 5, 2, 6, 1),
    Sketcher.Constraint("Coincident", 6, 2, 7, 1),
    Sketcher.Constraint("Coincident", 7, 2, 8, 1),
    Sketcher.Constraint("Coincident", 8, 2, 9, 1),
    Sketcher.Constraint("Coincident", 9, 2, 10, 1),
    Sketcher.Constraint("Coincident", 10, 2, 11, 1),
    Sketcher.Constraint("Coincident", 11, 2, 12, 1),
    Sketcher.Constraint("Coincident", 12, 2, 13, 1),
    Sketcher.Constraint("Coincident", 13, 2, 0, 1),
    Sketcher.Constraint("Horizontal", 0),
    Sketcher.Constraint("Vertical", 1),
    Sketcher.Constraint("Horizontal", 3),
    Sketcher.Constraint("Vertical", 5),
    Sketcher.Constraint("Horizontal", 6),
    Sketcher.Constraint("Vertical", 7),
    Sketcher.Constraint("Horizontal", 8),
    Sketcher.Constraint("Vertical", 9),
    Sketcher.Constraint("Horizontal", 10),
    Sketcher.Constraint("Vertical", 11),
    Sketcher.Constraint("Horizontal", 12),
    Sketcher.Constraint("Vertical", 13),
    Sketcher.Constraint("Equal", 2, 4),
    Sketcher.Constraint("Horizontal", 0, 2, 5, 2),
    Sketcher.Constraint("Horizontal", 6, 2, 9, 2),
    Sketcher.Constraint("Horizontal", 8, 2, 11, 2),
    Sketcher.Constraint("Equal", 0, 6),
    Sketcher.Constraint("Equal", 8, 12),
    Sketcher.Constraint("Radius", 2, Q("1.5 in")),
    Sketcher.Constraint("DistanceX", 0, 1, 0, 2, Q("4 in")),
    Sketcher.Constraint("DistanceX", 3, 2, 3, 1, Q("45 in")),
    Sketcher.Constraint("DistanceX", 10, 1, 10, 2, Q("37.75 in")),
    Sketcher.Constraint("DistanceY", 1, 1, 1, 2, Q("7.984 in")),
    Sketcher.Constraint("DistanceX", -1, 1, 2, 3, Q("3.8125 in")),
    Sketcher.Constraint("DistanceY", 7, 1, 7, 2, Q("102.576923 mm")),
    Sketcher.Constraint("DistanceY", 7, 2, -1, 1, Q("83.466531 mm")),
])
pad5 = body5.newObject("PartDesign::Pad", "Pad004")
pad5.Profile = sketch6
pad5.Length = Q("0.75 in")
body6 = doc.addObject("PartDesign::Body", "Body005")

# Sketch on XY plane
sketch7 = body6.newObject("Sketcher::SketchObject", "Sketch006")
sketch7.AttachmentSupport = (doc.getObject("XY_Plane005"), [""])
sketch7.MapMode = "FlatFace"
sketch7.AttachmentOffset = App.Placement(V(0, 0, 804.087271), App.Rotation())
sketch7.addGeometry([
    Part.LineSegment(V(33, -186, 0), V(135, -186, 0)),  # 0
    Part.LineSegment(V(135, -186, 0), V(135, 2, 0)),  # 1
    Part.ArcOfCircle(Part.Circle(V(97, 2, 0), V(0, 0, 1), 38), math.radians(0), math.radians(90)),  # 2
    Part.LineSegment(V(97, 40, 0), V(-1046, 40, 0)),  # 3
    Part.ArcOfCircle(Part.Circle(V(-1046, 2, 0), V(0, 0, 1), 38), math.radians(90), math.radians(180)),  # 4
    Part.LineSegment(V(-1084, 2, 0), V(-1084, -186, 0)),  # 5
    Part.LineSegment(V(-1084, -186, 0), V(-983, -186, 0)),  # 6
    Part.LineSegment(V(-983, -186, 0), V(-983, -91, 0)),  # 7
    Part.LineSegment(V(-983, -91, 0), V(-954, -91, 0)),  # 8
    Part.LineSegment(V(-954, -91, 0), V(-954, -186, 0)),  # 9
    Part.LineSegment(V(-954, -186, 0), V(5, -186, 0)),  # 10
    Part.LineSegment(V(5, -186, 0), V(5, -91, 0)),  # 11
    Part.LineSegment(V(5, -91, 0), V(33, -91, 0)),  # 12
    Part.LineSegment(V(33, -91, 0), V(33, -186, 0)),  # 13
], False)
sketch7.addConstraint([
    Sketcher.Constraint("Coincident", 0, 2, 1, 1),
    Sketcher.Constraint("Tangent", 1, 2, 2, 1),
    Sketcher.Constraint("Tangent", 2, 2, 3, 1),
    Sketcher.Constraint("Tangent", 3, 2, 4, 1),
    Sketcher.Constraint("Tangent", 4, 2, 5, 1),
    Sketcher.Constraint("Coincident", 5, 2, 6, 1),
    Sketcher.Constraint("Coincident", 6, 2, 7, 1),
    Sketcher.Constraint("Coincident", 7, 2, 8, 1),
    Sketcher.Constraint("Coincident", 8, 2, 9, 1),
    Sketcher.Constraint("Coincident", 9, 2, 10, 1),
    Sketcher.Constraint("Coincident", 10, 2, 11, 1),
    Sketcher.Constraint("Coincident", 11, 2, 12, 1),
    Sketcher.Constraint("Coincident", 12, 2, 13, 1),
    Sketcher.Constraint("Coincident", 13, 2, 0, 1),
    Sketcher.Constraint("Horizontal", 0),
    Sketcher.Constraint("Vertical", 1),
    Sketcher.Constraint("Horizontal", 3),
    Sketcher.Constraint("Vertical", 5),
    Sketcher.Constraint("Horizontal", 6),
    Sketcher.Constraint("Vertical", 7),
    Sketcher.Constraint("Horizontal", 8),
    Sketcher.Constraint("Vertical", 9),
    Sketcher.Constraint("Horizontal", 10),
    Sketcher.Constraint("Vertical", 11),
    Sketcher.Constraint("Horizontal", 12),
    Sketcher.Constraint("Vertical", 13),
    Sketcher.Constraint("Equal", 2, 4),
    Sketcher.Constraint("Horizontal", 0, 2, 5, 2),
    Sketcher.Constraint("Horizontal", 6, 2, 9, 2),
    Sketcher.Constraint("Horizontal", 8, 2, 11, 2),
    Sketcher.Constraint("Equal", 0, 6),
    Sketcher.Constraint("Equal", 8, 12),
    Sketcher.Constraint("Radius", 2, Q("1.5 in")),
    Sketcher.Constraint("DistanceX", 0, 1, 0, 2, Q("4 in")),
    Sketcher.Constraint("DistanceX", 3, 2, 3, 1, Q("45 in")),
    Sketcher.Constraint("DistanceX", 10, 1, 10, 2, Q("37.75 in")),
    Sketcher.Constraint("DistanceY", 1, 1, 1, 2, Q("7.407 in")),
    Sketcher.Constraint("DistanceX", -1, 1, 2, 3, Q("3.8125 in")),
    Sketcher.Constraint("DistanceY", 7, 1, 7, 2, Q("94.598718 mm")),
    Sketcher.Constraint("DistanceY", -1, 1, 2, 3, Q("2.094346 mm")),
])
pad6 = body6.newObject("PartDesign::Pad", "Pad005")
pad6.Profile = sketch7
pad6.Length = Q("0.75 in")
body7 = doc.addObject("PartDesign::Body", "Body006")

# Sketch on XY plane
sketch8 = body7.newObject("Sketcher::SketchObject", "Sketch007")
sketch8.AttachmentSupport = (doc.getObject("XY_Plane006"), [""])
sketch8.MapMode = "FlatFace"
sketch8.AttachmentOffset = App.Placement(V(0, 0, 1058.087271), App.Rotation())
sketch8.addGeometry([
    Part.LineSegment(V(33, -186, 0), V(135, -186, 0)),  # 0
    Part.LineSegment(V(135, -186, 0), V(135, -11, 0)),  # 1
    Part.ArcOfCircle(Part.Circle(V(97, -11, 0), V(0, 0, 1), 38), math.radians(0), math.radians(90)),  # 2
    Part.LineSegment(V(97, 27, 0), V(-1046, 27, 0)),  # 3
    Part.ArcOfCircle(Part.Circle(V(-1046, -11, 0), V(0, 0, 1), 38), math.radians(90), math.radians(180)),  # 4
    Part.LineSegment(V(-1084, -11, 0), V(-1084, -186, 0)),  # 5
    Part.LineSegment(V(-1084, -186, 0), V(-983, -186, 0)),  # 6
    Part.LineSegment(V(-983, -186, 0), V(-983, -98, 0)),  # 7
    Part.LineSegment(V(-983, -98, 0), V(-954, -98, 0)),  # 8
    Part.LineSegment(V(-954, -98, 0), V(-954, -186, 0)),  # 9
    Part.LineSegment(V(-954, -186, 0), V(5, -186, 0)),  # 10
    Part.LineSegment(V(5, -186, 0), V(5, -98, 0)),  # 11
    Part.LineSegment(V(5, -98, 0), V(33, -98, 0)),  # 12
    Part.LineSegment(V(33, -98, 0), V(33, -186, 0)),  # 13
], False)
sketch8.addConstraint([
    Sketcher.Constraint("Coincident", 0, 2, 1, 1),
    Sketcher.Constraint("Tangent", 1, 2, 2, 1),
    Sketcher.Constraint("Tangent", 2, 2, 3, 1),
    Sketcher.Constraint("Tangent", 3, 2, 4, 1),
    Sketcher.Constraint("Tangent", 4, 2, 5, 1),
    Sketcher.Constraint("Coincident", 5, 2, 6, 1),
    Sketcher.Constraint("Coincident", 6, 2, 7, 1),
    Sketcher.Constraint("Coincident", 7, 2, 8, 1),
    Sketcher.Constraint("Coincident", 8, 2, 9, 1),
    Sketcher.Constraint("Coincident", 9, 2, 10, 1),
    Sketcher.Constraint("Coincident", 10, 2, 11, 1),
    Sketcher.Constraint("Coincident", 11, 2, 12, 1),
    Sketcher.Constraint("Coincident", 12, 2, 13, 1),
    Sketcher.Constraint("Coincident", 13, 2, 0, 1),
    Sketcher.Constraint("Horizontal", 0),
    Sketcher.Constraint("Vertical", 1),
    Sketcher.Constraint("Horizontal", 3),
    Sketcher.Constraint("Vertical", 5),
    Sketcher.Constraint("Horizontal", 6),
    Sketcher.Constraint("Vertical", 7),
    Sketcher.Constraint("Horizontal", 8),
    Sketcher.Constraint("Vertical", 9),
    Sketcher.Constraint("Horizontal", 10),
    Sketcher.Constraint("Vertical", 11),
    Sketcher.Constraint("Horizontal", 12),
    Sketcher.Constraint("Vertical", 13),
    Sketcher.Constraint("Equal", 2, 4),
    Sketcher.Constraint("Horizontal", 0, 2, 5, 2),
    Sketcher.Constraint("Horizontal", 6, 2, 9, 2),
    Sketcher.Constraint("Horizontal", 8, 2, 11, 2),
    Sketcher.Constraint("Equal", 0, 6),
    Sketcher.Constraint("Equal", 8, 12),
    Sketcher.Constraint("Radius", 2, Q("1.5 in")),
    Sketcher.Constraint("DistanceX", 0, 1, 0, 2, Q("4 in")),
    Sketcher.Constraint("DistanceX", 3, 2, 3, 1, Q("45 in")),
    Sketcher.Constraint("DistanceX", 10, 1, 10, 2, Q("37.75 in")),
    Sketcher.Constraint("DistanceY", 1, 1, 1, 2, Q("6.883 in")),
    Sketcher.Constraint("DistanceX", -1, 1, 2, 3, Q("3.8125 in")),
    Sketcher.Constraint("DistanceY", 7, 1, 7, 2, Q("87.923077 mm")),
    Sketcher.Constraint("DistanceY", 2, 3, -1, 1, Q("11.215254 mm")),
])
pad7 = body7.newObject("PartDesign::Pad", "Pad006")
pad7.Profile = sketch8
pad7.Length = Q("0.75 in")

doc.recompute()
